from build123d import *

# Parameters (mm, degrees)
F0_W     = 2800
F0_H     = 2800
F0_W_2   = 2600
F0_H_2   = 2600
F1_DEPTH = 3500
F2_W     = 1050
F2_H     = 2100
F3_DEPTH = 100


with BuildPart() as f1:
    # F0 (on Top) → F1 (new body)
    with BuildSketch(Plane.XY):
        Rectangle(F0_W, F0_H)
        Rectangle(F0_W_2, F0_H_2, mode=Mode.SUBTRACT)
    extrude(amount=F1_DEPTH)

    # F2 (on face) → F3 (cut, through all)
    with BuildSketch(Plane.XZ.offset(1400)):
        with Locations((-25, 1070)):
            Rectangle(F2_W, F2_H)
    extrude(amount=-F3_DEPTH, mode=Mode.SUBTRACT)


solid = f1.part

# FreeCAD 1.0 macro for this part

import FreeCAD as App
import Part
import Sketcher

V = App.Vector


def add_polygon(sketch, points):
    """Adds a closed chain of lines whose ends are joined by coincident constraints."""
    first, n = sketch.GeometryCount, len(points)
    for a, b in zip(points, points[1:] + points[:1]):
        sketch.addGeometry(Part.LineSegment(App.Vector(*a, 0), App.Vector(*b, 0)), False)
    for i in range(n):
        sketch.addConstraint(Sketcher.Constraint("Coincident", first + i, 2, first + (i + 1) % n, 1))

doc = App.newDocument("Part")
body = doc.addObject("PartDesign::Body", "Body")

# Sketch on XY plane
sketch1 = body.newObject("Sketcher::SketchObject", "Sketch")
sketch1.AttachmentSupport = (doc.getObject("XY_Plane"), [""])
sketch1.MapMode = "FlatFace"
add_polygon(sketch1, [(-1400, 1400), (-1400, -1400), (1400, -1400), (1400, 1400)])  # lines 0-3
add_polygon(sketch1, [(1300, -1300), (-1300, -1300), (-1300, 1300), (1300, 1300)])  # lines 4-7
sketch1.addConstraint([
    Sketcher.Constraint("Vertical", 0),
    Sketcher.Constraint("Horizontal", 1),
    Sketcher.Constraint("Vertical", 2),
    Sketcher.Constraint("Horizontal", 3),
    Sketcher.Constraint("Horizontal", 4),
    Sketcher.Constraint("Vertical", 5),
    Sketcher.Constraint("Horizontal", 6),
    Sketcher.Constraint("Vertical", 7),
    Sketcher.Constraint("Symmetric", 0, 2, 2, 2, -1, 1),
    Sketcher.Constraint("Symmetric", 4, 2, 6, 2, -1, 1),
    Sketcher.Constraint("Equal", 3, 0),
    Sketcher.Constraint("Equal", 6, 5),
    Sketcher.Constraint("DistanceX", 1, 1, 1, 2, 2800.0),
    Sketcher.Constraint("DistanceX", 4, 2, 4, 1, 2600.0),
])
pad1 = body.newObject("PartDesign::Pad", "Pad")
pad1.Profile = sketch1
pad1.Length = 3500

# Sketch on XZ plane
sketch2 = body.newObject("Sketcher::SketchObject", "Sketch001")
sketch2.AttachmentSupport = (doc.getObject("XZ_Plane"), [""])
sketch2.MapMode = "FlatFace"
sketch2.AttachmentOffset = App.Placement(V(0, 0, 1400), App.Rotation())
add_polygon(sketch2, [(-550, 2120), (-550, 20), (500, 20), (500, 2120)])  # lines 0-3
sketch2.addConstraint([
    Sketcher.Constraint("Vertical", 0),
    Sketcher.Constraint("Horizontal", 1),
    Sketcher.Constraint("Vertical", 2),
    Sketcher.Constraint("Horizontal", 3),
    Sketcher.Constraint("DistanceX", 1, 1, 1, 2, 1050.0),
    Sketcher.Constraint("DistanceY", 0, 2, 0, 1, 2100.0),
    Sketcher.Constraint("DistanceX", 0, 2, -1, 1, 550.0),
    Sketcher.Constraint("DistanceY", -1, 1, 0, 2, 20.0),
])
pocket1 = body.newObject("PartDesign::Pocket", "Pocket")
pocket1.Profile = sketch2
pocket1.Length = 100

doc.recompute()
